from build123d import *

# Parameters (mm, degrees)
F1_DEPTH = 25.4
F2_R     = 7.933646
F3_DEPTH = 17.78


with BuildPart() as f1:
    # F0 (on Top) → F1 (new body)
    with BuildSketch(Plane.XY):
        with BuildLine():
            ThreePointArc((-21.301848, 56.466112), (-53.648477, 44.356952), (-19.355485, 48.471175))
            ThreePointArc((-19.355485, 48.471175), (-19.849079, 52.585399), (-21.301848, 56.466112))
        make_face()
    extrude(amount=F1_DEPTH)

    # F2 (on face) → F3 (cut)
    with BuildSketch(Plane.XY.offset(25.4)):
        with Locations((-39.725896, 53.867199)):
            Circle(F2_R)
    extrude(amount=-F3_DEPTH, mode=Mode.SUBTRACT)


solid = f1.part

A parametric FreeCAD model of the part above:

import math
import FreeCAD as App
import Part
import Sketcher
Q = App.Units.Quantity

doc = App.newDocument("Part")
body = doc.addObject("PartDesign::Body", "Body")

sketch1 = body.newObject("Sketcher::SketchObject", "Sketch")
sketch1.AttachmentSupport = (doc.getObject("XY_Plane"), [""])
sketch1.MapMode = "FlatFace"
sketch1.addGeometry([
    Part.ArcOfCircle(Part.Circle(App.Vector(-36.748778, 48.471176, 0), App.Vector(0, 0, 1), 17.393293), math.radians(27.364927), math.radians(359.999996)),
    Part.ArcOfCircle(Part.Circle(App.Vector(-36.748766, 48.471179, 0), App.Vector(0, 0, 1), 17.393281), math.radians(-0.000014), math.radians(27.364937)),
], False)
sketch1.addConstraint([
    Sketcher.Constraint("Coincident", 0, 1, 1, 2),
    Sketcher.Constraint("Coincident", 1, 1, 0, 2),
    Sketcher.Constraint("Radius", 1, Q("17.393281 mm")),
    Sketcher.Constraint("Radius", 0, Q("17.393293 mm")),
    Sketcher.Constraint("DistanceX", 0, 3, -1, 1, Q("36.748778 mm")),
    Sketcher.Constraint("DistanceY", -1, 1, 1, 3, Q("48.471179 mm")),
    Sketcher.Constraint("DistanceX", 0, 1, -1, 1, Q("21.301848 mm")),
    Sketcher.Constraint("DistanceY", -1, 1, 1, 1, Q("48.471175 mm")),
])
pad1 = body.newObject("PartDesign::Pad", "Pad")
pad1.Profile = sketch1
pad1.Length = Q("1 in")

sketch2 = body.newObject("Sketcher::SketchObject", "Sketch001")
sketch2.AttachmentSupport = (doc.getObject("XY_Plane"), [""])
sketch2.MapMode = "FlatFace"
sketch2.AttachmentOffset = App.Placement(App.Vector(0, 0, 1 * 25.4), App.Rotation())
sketch2.addGeometry(Part.Circle(App.Vector(-40, 54, 0), App.Vector(0, 0, 1), 8), False)
sketch2.addConstraint([
    Sketcher.Constraint("Diameter", 0, Q("15.867292 mm")),
    Sketcher.Constraint("DistanceY", -1, 1, 0, 3, Q("53.867199 mm")),
    Sketcher.Constraint("DistanceX", 0, 3, -1, 1, Q("39.725896 mm")),
])
pocket1 = body.newObject("PartDesign::Pocket", "Pocket")
pocket1.Profile = sketch2
pocket1.Length = Q("0.7 in")

doc.recompute()
